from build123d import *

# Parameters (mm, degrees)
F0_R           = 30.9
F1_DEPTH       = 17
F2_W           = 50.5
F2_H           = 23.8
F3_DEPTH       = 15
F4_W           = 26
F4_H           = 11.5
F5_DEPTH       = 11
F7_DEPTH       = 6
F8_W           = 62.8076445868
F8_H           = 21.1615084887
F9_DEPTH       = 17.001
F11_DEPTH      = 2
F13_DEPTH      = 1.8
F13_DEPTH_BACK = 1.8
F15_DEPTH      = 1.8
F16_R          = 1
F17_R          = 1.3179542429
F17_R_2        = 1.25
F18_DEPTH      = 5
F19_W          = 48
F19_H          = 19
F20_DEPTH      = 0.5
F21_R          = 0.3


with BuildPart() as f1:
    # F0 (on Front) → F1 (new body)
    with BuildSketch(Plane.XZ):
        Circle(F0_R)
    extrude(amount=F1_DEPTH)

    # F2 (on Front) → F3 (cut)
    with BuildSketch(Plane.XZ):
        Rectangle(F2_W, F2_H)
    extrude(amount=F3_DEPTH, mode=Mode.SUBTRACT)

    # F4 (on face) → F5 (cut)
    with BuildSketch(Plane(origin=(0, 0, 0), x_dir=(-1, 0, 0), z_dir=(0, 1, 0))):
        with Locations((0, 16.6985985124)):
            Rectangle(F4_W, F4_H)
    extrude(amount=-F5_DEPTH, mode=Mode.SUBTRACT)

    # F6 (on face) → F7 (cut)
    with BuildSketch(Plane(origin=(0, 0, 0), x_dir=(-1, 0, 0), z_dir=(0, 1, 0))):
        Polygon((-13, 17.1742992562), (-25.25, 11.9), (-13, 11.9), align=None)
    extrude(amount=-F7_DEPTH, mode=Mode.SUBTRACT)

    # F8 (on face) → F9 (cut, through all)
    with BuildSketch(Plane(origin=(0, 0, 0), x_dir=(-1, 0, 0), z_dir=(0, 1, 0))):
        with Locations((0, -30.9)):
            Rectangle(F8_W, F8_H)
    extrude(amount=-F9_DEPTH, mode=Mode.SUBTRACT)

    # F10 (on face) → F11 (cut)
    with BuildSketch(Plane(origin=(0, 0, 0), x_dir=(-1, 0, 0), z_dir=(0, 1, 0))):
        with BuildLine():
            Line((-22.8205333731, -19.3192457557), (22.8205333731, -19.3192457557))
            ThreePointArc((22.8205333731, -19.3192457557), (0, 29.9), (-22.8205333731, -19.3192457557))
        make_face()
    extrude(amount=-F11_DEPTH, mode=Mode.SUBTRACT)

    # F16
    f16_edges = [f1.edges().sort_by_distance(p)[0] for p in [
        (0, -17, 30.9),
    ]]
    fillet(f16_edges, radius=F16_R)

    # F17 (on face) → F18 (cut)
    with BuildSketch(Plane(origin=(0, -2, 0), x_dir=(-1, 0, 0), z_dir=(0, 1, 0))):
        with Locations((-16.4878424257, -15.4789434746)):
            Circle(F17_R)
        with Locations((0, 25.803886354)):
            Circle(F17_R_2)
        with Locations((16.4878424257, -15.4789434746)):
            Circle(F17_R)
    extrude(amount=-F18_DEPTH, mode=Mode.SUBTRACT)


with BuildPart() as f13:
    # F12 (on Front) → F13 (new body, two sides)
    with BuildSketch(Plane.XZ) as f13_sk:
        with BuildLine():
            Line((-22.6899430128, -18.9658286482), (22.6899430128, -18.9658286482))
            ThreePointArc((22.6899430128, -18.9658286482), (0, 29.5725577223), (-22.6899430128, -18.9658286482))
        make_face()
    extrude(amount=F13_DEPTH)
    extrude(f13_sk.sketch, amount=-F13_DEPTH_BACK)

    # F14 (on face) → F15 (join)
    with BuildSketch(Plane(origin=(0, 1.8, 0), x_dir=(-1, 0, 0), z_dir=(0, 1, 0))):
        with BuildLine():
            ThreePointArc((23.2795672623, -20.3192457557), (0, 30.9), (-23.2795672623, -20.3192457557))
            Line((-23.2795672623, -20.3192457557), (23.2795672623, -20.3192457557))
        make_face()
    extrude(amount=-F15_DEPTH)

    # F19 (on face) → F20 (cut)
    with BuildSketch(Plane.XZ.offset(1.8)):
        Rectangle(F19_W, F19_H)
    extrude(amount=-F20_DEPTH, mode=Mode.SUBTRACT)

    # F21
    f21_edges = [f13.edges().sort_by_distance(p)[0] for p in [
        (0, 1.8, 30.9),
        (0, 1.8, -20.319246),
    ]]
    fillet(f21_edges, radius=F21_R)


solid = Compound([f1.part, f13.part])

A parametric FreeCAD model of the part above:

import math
import FreeCAD as App
import Part
import Sketcher

V = App.Vector


def edges_at(feature, points):
    """Names of the edges that pass closest to the given points."""
    edges = feature.Shape.Edges
    near = lambda p: min(range(len(edges)), key=lambda i: edges[i].distToShape(Part.Vertex(*p))[0])
    return sorted({f"Edge{near(p) + 1}" for p in points})

doc = App.newDocument("Part")
body = doc.addObject("PartDesign::Body", "Body")

sketch1 = body.newObject("Sketcher::SketchObject", "Sketch")
sketch1.AttachmentSupport = (doc.getObject("XZ_Plane"), [""])
sketch1.MapMode = "FlatFace"
sketch1.addGeometry(Part.Circle(V(0, 0, 0), V(0, 0, 1), 31), False)
sketch1.addConstraint([
    Sketcher.Constraint("Coincident", 0, 3, -1, 1),
    Sketcher.Constraint("Diameter", 0, 61.8),
])
pad1 = body.newObject("PartDesign::Pad", "Pad")
pad1.Profile = sketch1
pad1.Length = 17

sketch2 = body.newObject("Sketcher::SketchObject", "Sketch001")
sketch2.AttachmentSupport = (doc.getObject("XZ_Plane"), [""])
sketch2.MapMode = "FlatFace"
sketch2.addGeometry([
    Part.LineSegment(V(-25, 12, 0), V(-25, -12, 0)),
    Part.LineSegment(V(-25, -12, 0), V(25, -12, 0)),
    Part.LineSegment(V(25, -12, 0), V(25, 12, 0)),
    Part.LineSegment(V(25, 12, 0), V(-25, 12, 0)),
], False)
sketch2.addConstraint([
    Sketcher.Constraint("Coincident", 0, 2, 1, 1),
    Sketcher.Constraint("Coincident", 1, 2, 2, 1),
    Sketcher.Constraint("Coincident", 2, 2, 3, 1),
    Sketcher.Constraint("Coincident", 3, 2, 0, 1),
    Sketcher.Constraint("Vertical", 0),
    Sketcher.Constraint("Horizontal", 1),
    Sketcher.Constraint("Vertical", 2),
    Sketcher.Constraint("Horizontal", 3),
    Sketcher.Constraint("Symmetric", 0, 2, 2, 2, -1, 1),
    Sketcher.Constraint("DistanceX", 1, 1, 1, 2, 50.5),
    Sketcher.Constraint("DistanceY", 0, 2, 0, 1, 23.8),
])
pocket1 = body.newObject("PartDesign::Pocket", "Pocket")
pocket1.Profile = sketch2
pocket1.Length = 15
pocket1.Reversed = True

sketch3 = body.newObject("Sketcher::SketchObject", "Sketch002")
sketch3.AttachmentSupport = (doc.getObject("XZ_Plane"), [""])
sketch3.MapMode = "FlatFace"
sketch3.addGeometry([
    Part.LineSegment(V(13, 22, 0), V(13, 11, 0)),
    Part.LineSegment(V(13, 11, 0), V(-13, 11, 0)),
    Part.LineSegment(V(-13, 11, 0), V(-13, 22, 0)),
    Part.LineSegment(V(-13, 22, 0), V(13, 22, 0)),
], False)
sketch3.addConstraint([
    Sketcher.Constraint("Coincident", 0, 2, 1, 1),
    Sketcher.Constraint("Coincident", 1, 2, 2, 1),
    Sketcher.Constraint("Coincident", 2, 2, 3, 1),
    Sketcher.Constraint("Coincident", 3, 2, 0, 1),
    Sketcher.Constraint("Vertical", 0),
    Sketcher.Constraint("Horizontal", 1),
    Sketcher.Constraint("Vertical", 2),
    Sketcher.Constraint("Horizontal", 3),
    Sketcher.Constraint("DistanceX", 1, 2, 1, 1, 26.0),
    Sketcher.Constraint("DistanceY", 0, 2, 0, 1, 11.5),
    Sketcher.Constraint("DistanceX", -1, 1, 0, 2, 13.0),
    Sketcher.Constraint("DistanceY", -1, 1, 0, 2, 10.948599),
])
pocket2 = body.newObject("PartDesign::Pocket", "Pocket001")
pocket2.Profile = sketch3
pocket2.Length = 11
pocket2.Reversed = True

sketch4 = body.newObject("Sketcher::SketchObject", "Sketch003")
sketch4.AttachmentSupport = (doc.getObject("XZ_Plane"), [""])
sketch4.MapMode = "FlatFace"
sketch4.addGeometry([
    Part.LineSegment(V(13, 17, 0), V(25, 12, 0)),
    Part.LineSegment(V(25, 12, 0), V(13, 12, 0)),
    Part.LineSegment(V(13, 12, 0), V(13, 17, 0)),
], False)
sketch4.addConstraint([
    Sketcher.Constraint("Coincident", 0, 2, 1, 1),
    Sketcher.Constraint("Coincident", 1, 2, 2, 1),
    Sketcher.Constraint("Coincident", 2, 2, 0, 1),
    Sketcher.Constraint("Horizontal", 1),
    Sketcher.Constraint("Vertical", 2),
    Sketcher.Constraint("DistanceX", -1, 1, 1, 2, 13.0),
    Sketcher.Constraint("DistanceX", 1, 2, 1, 1, 12.25),
    Sketcher.Constraint("DistanceY", -1, 1, 0, 2, 11.9),
    Sketcher.Constraint("DistanceY", 2, 1, 2, 2, 5.274299),
])
pocket3 = body.newObject("PartDesign::Pocket", "Pocket002")
pocket3.Profile = sketch4
pocket3.Length = 6
pocket3.Reversed = True

sketch5 = body.newObject("Sketcher::SketchObject", "Sketch004")
sketch5.AttachmentSupport = (doc.getObject("XZ_Plane"), [""])
sketch5.MapMode = "FlatFace"
sketch5.addGeometry([
    Part.LineSegment(V(31, -20, 0), V(31, -41, 0)),
    Part.LineSegment(V(31, -41, 0), V(-31, -41, 0)),
    Part.LineSegment(V(-31, -41, 0), V(-31, -20, 0)),
    Part.LineSegment(V(-31, -20, 0), V(31, -20, 0)),
], False)
sketch5.addConstraint([
    Sketcher.Constraint("Coincident", 0, 2, 1, 1),
    Sketcher.Constraint("Coincident", 1, 2, 2, 1),
    Sketcher.Constraint("Coincident", 2, 2, 3, 1),
    Sketcher.Constraint("Coincident", 3, 2, 0, 1),
    Sketcher.Constraint("Vertical", 0),
    Sketcher.Constraint("Horizontal", 1),
    Sketcher.Constraint("Vertical", 2),
    Sketcher.Constraint("Horizontal", 3),
    Sketcher.Constraint("DistanceY", 0, 2, 0, 1, 21.161508),
    Sketcher.Constraint("DistanceX", 1, 2, 1, 1, 62.807645),
    Sketcher.Constraint("DistanceX", -1, 1, 0, 2, 31.403822),
    Sketcher.Constraint("DistanceY", 0, 2, -1, 1, 41.480754),
])
pocket4 = body.newObject("PartDesign::Pocket", "Pocket003")
pocket4.Profile = sketch5
pocket4.Type = "ThroughAll"
pocket4.Reversed = True

sketch6 = body.newObject("Sketcher::SketchObject", "Sketch005")
sketch6.AttachmentSupport = (doc.getObject("XZ_Plane"), [""])
sketch6.MapMode = "FlatFace"
sketch6.addGeometry([
    Part.LineSegment(V(23, -19, 0), V(-23, -19, 0)),
    Part.ArcOfCircle(Part.Circle(V(0, 0, 0), V(0, 0, 1), 30), math.radians(-40), math.radians(220)),
], False)
sketch6.addConstraint([
    Sketcher.Constraint("Coincident", 0, 1, 1, 1),
    Sketcher.Constraint("Coincident", 1, 2, 0, 2),
    Sketcher.Constraint("Horizontal", 0),
    Sketcher.Constraint("Coincident", 1, 3, -1, 1),
    Sketcher.Constraint("Radius", 1, 29.9),
    Sketcher.Constraint("DistanceX", 0, 2, 0, 1, 45.641067),
])
pocket5 = body.newObject("PartDesign::Pocket", "Pocket004")
pocket5.Profile = sketch6
pocket5.Length = 2
pocket5.Reversed = True
doc.recompute()

fillet = body.newObject("PartDesign::Fillet", "Fillet")
fillet.Base = (pocket5, edges_at(pocket5, [(0, -17, 30.9)]))
fillet.Radius = 1

sketch7 = body.newObject("Sketcher::SketchObject", "Sketch006")
sketch7.AttachmentSupport = (doc.getObject("XZ_Plane"), [""])
sketch7.MapMode = "FlatFace"
sketch7.AttachmentOffset = App.Placement(V(0, 0, 2), App.Rotation())
sketch7.addGeometry([
    Part.Circle(V(16.5, -15.5, 0), V(0, 0, 1), 1.3),
    Part.Circle(V(0, 25.8, 0), V(0, 0, 1), 1.2),
    Part.Circle(V(-16.5, -15.5, 0), V(0, 0, 1), 1.3),
], False)
sketch7.addConstraint([
    Sketcher.Constraint("Equal", 0, 2),
    Sketcher.Constraint("Symmetric", 0, 3, 2, 3, -2),
    Sketcher.Constraint("PointOnObject", 1, 3, -2),
    Sketcher.Constraint("Diameter", 1, 2.5),
    Sketcher.Constraint("Diameter", 0, 2.635908),
    Sketcher.Constraint("DistanceY", 0, 3, 1, 3, 41.28283),
    Sketcher.Constraint("DistanceX", -1, 1, 0, 3, 16.487842),
    Sketcher.Constraint("DistanceY", 0, 3, -1, 1, 15.478943),
])
pocket6 = body.newObject("PartDesign::Pocket", "Pocket005")
pocket6.Profile = sketch7
pocket6.Length = 5
pocket6.Reversed = True
body2 = doc.addObject("PartDesign::Body", "Body001")

sketch8 = body2.newObject("Sketcher::SketchObject", "Sketch007")
sketch8.AttachmentSupport = (doc.getObject("XZ_Plane001"), [""])
sketch8.MapMode = "FlatFace"
sketch8.addGeometry([
    Part.LineSegment(V(-23, -19, 0), V(23, -19, 0)),
    Part.ArcOfCircle(Part.Circle(V(0, 0, 0), V(0, 0, 1), 30), math.radians(-40), math.radians(220)),
], False)
sketch8.addConstraint([
    Sketcher.Constraint("Coincident", 0, 1, 1, 2),
    Sketcher.Constraint("Coincident", 1, 1, 0, 2),
    Sketcher.Constraint("Horizontal", 0),
    Sketcher.Constraint("Coincident", 1, 3, -1, 1),
    Sketcher.Constraint("Radius", 1, 29.572558),
    Sketcher.Constraint("DistanceX", 0, 1, 0, 2, 45.379886),
])
pad2 = body2.newObject("PartDesign::Pad", "Pad001")
pad2.Profile = sketch8
pad2.Type = "TwoLengths"
pad2.Length = 1.8
pad2.Length2 = 1.8

sketch9 = body2.newObject("Sketcher::SketchObject", "Sketch008")
sketch9.AttachmentSupport = (doc.getObject("XZ_Plane001"), [""])
sketch9.MapMode = "FlatFace"
sketch9.AttachmentOffset = App.Placement(V(0, 0, -1.8), App.Rotation())
sketch9.addGeometry([
    Part.ArcOfCircle(Part.Circle(V(0, 0, 0), V(0, 0, 1), 31), math.radians(-41), math.radians(221)),
    Part.LineSegment(V(23, -20, 0), V(-23, -20, 0)),
], False)
sketch9.addConstraint([
    Sketcher.Constraint("Coincident", 0, 1, 1, 1),
    Sketcher.Constraint("Coincident", 1, 2, 0, 2),
    Sketcher.Constraint("Horizontal", 1),
    Sketcher.Constraint("Coincident", 0, 3, -1, 1),
    Sketcher.Constraint("Radius", 0, 30.9),
    Sketcher.Constraint("DistanceX", 1, 2, 1, 1, 46.559135),
])
pad3 = body2.newObject("PartDesign::Pad", "Pad002")
pad3.Profile = sketch9
pad3.Length = 1.8

sketch10 = body2.newObject("Sketcher::SketchObject", "Sketch009")
sketch10.AttachmentSupport = (doc.getObject("XZ_Plane001"), [""])
sketch10.MapMode = "FlatFace"
sketch10.AttachmentOffset = App.Placement(V(0, 0, 1.8), App.Rotation())
sketch10.addGeometry([
    Part.LineSegment(V(-24, 10, 0), V(-24, -10, 0)),
    Part.LineSegment(V(-24, -10, 0), V(24, -10, 0)),
    Part.LineSegment(V(24, -10, 0), V(24, 10, 0)),
    Part.LineSegment(V(24, 10, 0), V(-24, 10, 0)),
], False)
sketch10.addConstraint([
    Sketcher.Constraint("Coincident", 0, 2, 1, 1),
    Sketcher.Constraint("Coincident", 1, 2, 2, 1),
    Sketcher.Constraint("Coincident", 2, 2, 3, 1),
    Sketcher.Constraint("Coincident", 3, 2, 0, 1),
    Sketcher.Constraint("Vertical", 0),
    Sketcher.Constraint("Horizontal", 1),
    Sketcher.Constraint("Vertical", 2),
    Sketcher.Constraint("Horizontal", 3),
    Sketcher.Constraint("Symmetric", 0, 2, 2, 2, -1, 1),
    Sketcher.Constraint("DistanceX", 1, 1, 1, 2, 48.0),
    Sketcher.Constraint("DistanceY", 0, 2, 0, 1, 19.0),
])
pocket7 = body2.newObject("PartDesign::Pocket", "Pocket006")
pocket7.Profile = sketch10
pocket7.Length = 0.5
doc.recompute()

fillet2 = body2.newObject("PartDesign::Fillet", "Fillet001")
fillet2.Base = (pocket7, edges_at(pocket7, [(0, 1.8, 30.9), (0, 1.8, -20.319)]))
fillet2.Radius = 0.3

doc.recompute()
